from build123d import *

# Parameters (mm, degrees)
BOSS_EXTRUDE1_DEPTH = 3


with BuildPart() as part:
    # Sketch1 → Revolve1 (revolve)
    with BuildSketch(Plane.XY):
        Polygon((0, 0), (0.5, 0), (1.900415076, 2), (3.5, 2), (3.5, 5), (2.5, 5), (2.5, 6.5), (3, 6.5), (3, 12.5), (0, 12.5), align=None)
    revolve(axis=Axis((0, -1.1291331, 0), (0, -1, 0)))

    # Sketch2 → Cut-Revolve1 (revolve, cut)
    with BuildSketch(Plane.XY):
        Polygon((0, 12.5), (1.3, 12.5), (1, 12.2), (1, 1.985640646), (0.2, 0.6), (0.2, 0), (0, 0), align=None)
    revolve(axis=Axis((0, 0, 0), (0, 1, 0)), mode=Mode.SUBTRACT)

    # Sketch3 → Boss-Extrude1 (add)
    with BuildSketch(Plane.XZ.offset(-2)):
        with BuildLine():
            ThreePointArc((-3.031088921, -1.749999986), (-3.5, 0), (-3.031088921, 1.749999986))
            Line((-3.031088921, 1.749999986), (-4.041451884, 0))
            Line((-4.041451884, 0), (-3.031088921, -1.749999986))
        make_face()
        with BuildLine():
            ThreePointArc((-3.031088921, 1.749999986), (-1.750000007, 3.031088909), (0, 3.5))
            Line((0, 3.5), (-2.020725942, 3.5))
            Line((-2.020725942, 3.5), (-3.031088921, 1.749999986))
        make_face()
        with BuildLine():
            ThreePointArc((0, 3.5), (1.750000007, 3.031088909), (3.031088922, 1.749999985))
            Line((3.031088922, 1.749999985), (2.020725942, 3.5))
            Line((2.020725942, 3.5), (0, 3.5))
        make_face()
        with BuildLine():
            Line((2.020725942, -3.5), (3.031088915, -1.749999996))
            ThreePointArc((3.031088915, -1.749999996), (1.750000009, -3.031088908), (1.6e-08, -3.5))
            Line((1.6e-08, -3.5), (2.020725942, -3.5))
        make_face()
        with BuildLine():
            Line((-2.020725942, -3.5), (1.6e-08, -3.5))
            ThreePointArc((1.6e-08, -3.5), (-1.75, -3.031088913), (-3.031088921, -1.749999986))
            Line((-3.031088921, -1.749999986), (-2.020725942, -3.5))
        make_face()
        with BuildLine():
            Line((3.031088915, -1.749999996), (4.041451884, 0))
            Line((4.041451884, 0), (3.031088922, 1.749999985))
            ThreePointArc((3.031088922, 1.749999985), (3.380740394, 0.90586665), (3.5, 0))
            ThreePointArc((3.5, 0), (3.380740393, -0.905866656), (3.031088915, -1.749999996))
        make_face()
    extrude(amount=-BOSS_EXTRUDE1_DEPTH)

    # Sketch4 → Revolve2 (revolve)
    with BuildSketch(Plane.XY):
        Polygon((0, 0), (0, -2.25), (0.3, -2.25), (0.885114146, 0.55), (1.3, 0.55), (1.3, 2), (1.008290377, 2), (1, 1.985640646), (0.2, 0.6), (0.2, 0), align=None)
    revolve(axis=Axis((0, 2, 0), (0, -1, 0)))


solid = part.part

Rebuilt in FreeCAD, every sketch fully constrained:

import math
import FreeCAD as App
import Part
import Sketcher
Q = App.Units.Quantity


def add_polygon(sketch, points):
    """Adds a closed chain of lines whose ends are joined by coincident constraints."""
    first, n = sketch.GeometryCount, len(points)
    for a, b in zip(points, points[1:] + points[:1]):
        sketch.addGeometry(Part.LineSegment(App.Vector(*a, 0), App.Vector(*b, 0)), False)
    for i in range(n):
        sketch.addConstraint(Sketcher.Constraint("Coincident", first + i, 2, first + (i + 1) % n, 1))

doc = App.newDocument("Part")
params = doc.addObject("Spreadsheet::Sheet", "Params")
for row, (alias, value) in enumerate([
    ("sketch1_width", "1 mm"),
    ("sketch1_width2", "3 mm"),
    ("sketch1_height", "6 mm"),
    ("sketch1_width3", "0.5 mm"),
    ("sketch1_height2", "1.5 mm"),
    ("revolution_angle", "360 deg"),
    ("sketch2_width", "1.3 mm"),
    ("sketch2_width2", "0.2 mm"),
    ("sketch2_height", "12.5 mm"),
    ("sketch2_height2", "0.6 mm"),
    ("groove_angle", "360 deg"),
    ("sketch3_radius", "3.5 mm"),
    ("pad1_length", "3 mm"),
    ("sketch4_width", "0.3 mm"),
    ("sketch4_width2", "0.2 mm"),
    ("sketch4_height", "0.6 mm"),
    ("sketch4_height2", "2.25 mm"),
    ("sketch4_height3", "1.45 mm"),
    ("revolution2_angle", "360 deg"),
], start=1):
    params.set(f"A{row}", alias)
    params.set(f"B{row}", "=" + value)
    params.setAlias(f"B{row}", alias)

body = doc.addObject("PartDesign::Body", "Body")

sketch1 = body.newObject("Sketcher::SketchObject", "Sketch")
sketch1.AttachmentSupport = (doc.getObject("XY_Plane"), [""])
sketch1.MapMode = "FlatFace"
add_polygon(sketch1, [(0, 0), (0.5, 0), (1.9, 2), (3.5, 2), (3.5, 5), (2.5, 5), (2.5, 6.5), (3, 6.5), (3, 12.5), (0, 12.5)])
sketch1.addConstraint(Sketcher.Constraint("Horizontal", 0))
sketch1.addConstraint(Sketcher.Constraint("Horizontal", 2))
sketch1.addConstraint(Sketcher.Constraint("Vertical", 3))
sketch1.addConstraint(Sketcher.Constraint("Horizontal", 4))
sketch1.addConstraint(Sketcher.Constraint("Vertical", 5))
sketch1.addConstraint(Sketcher.Constraint("Horizontal", 6))
sketch1.addConstraint(Sketcher.Constraint("Vertical", 7))
sketch1.addConstraint(Sketcher.Constraint("Horizontal", 8))
sketch1.addConstraint(Sketcher.Constraint("Vertical", 9))
sketch1.addConstraint(Sketcher.Constraint("Coincident", 9, 2, -1, 1))
sketch1.addConstraint(Sketcher.Constraint("Equal", 0, 6))
sketch1.addConstraint(Sketcher.Constraint("Equal", 8, 3))
sketch1.addConstraint(Sketcher.Constraint("DistanceX", 4, 2, 4, 1, Q("1 mm")))
sketch1.addConstraint(Sketcher.Constraint("DistanceX", 8, 2, 8, 1, Q("3 mm")))
sketch1.addConstraint(Sketcher.Constraint("DistanceY", 7, 1, 7, 2, Q("6 mm")))
sketch1.addConstraint(Sketcher.Constraint("Angle", 1, Q("55 deg")))
sketch1.addConstraint(Sketcher.Constraint("DistanceX", 0, 1, 0, 2, Q("0.5 mm")))
sketch1.addConstraint(Sketcher.Constraint("DistanceY", 5, 1, 5, 2, Q("1.5 mm")))
sketch1.addConstraint(Sketcher.Constraint("DistanceY", 9, 2, 9, 1, Q("12.5 mm")))
sketch1.setExpression("Constraints[22]", "Params.sketch1_width")
sketch1.setExpression("Constraints[23]", "Params.sketch1_width2")
sketch1.setExpression("Constraints[24]", "Params.sketch1_height")
sketch1.setExpression("Constraints[26]", "Params.sketch1_width3")
sketch1.setExpression("Constraints[27]", "Params.sketch1_height2")
revolution = body.newObject("PartDesign::Revolution", "Revolution")
revolution.Profile = sketch1
revolution.ReferenceAxis = (sketch1, ["V_Axis"])
revolution.setExpression("Angle", "Params.revolution_angle")

sketch2 = body.newObject("Sketcher::SketchObject", "Sketch001")
sketch2.AttachmentSupport = (doc.getObject("XY_Plane"), [""])
sketch2.MapMode = "FlatFace"
add_polygon(sketch2, [(1.3, 12.5), (0, 12.5), (0, 0), (0.2, 0), (0.2, 0.6), (1, 1.99), (1, 12.2)])
sketch2.addConstraint(Sketcher.Constraint("Horizontal", 0))
sketch2.addConstraint(Sketcher.Constraint("Vertical", 1))
sketch2.addConstraint(Sketcher.Constraint("Horizontal", 2))
sketch2.addConstraint(Sketcher.Constraint("Vertical", 3))
sketch2.addConstraint(Sketcher.Constraint("Vertical", 5))
sketch2.addConstraint(Sketcher.Constraint("Coincident", 1, 2, -1, 1))
sketch2.addConstraint(Sketcher.Constraint("Angle", 4, Q("60 deg")))
sketch2.addConstraint(Sketcher.Constraint("Angle", 6, Q("45 deg")))
sketch2.addConstraint(Sketcher.Constraint("DistanceX", 0, 2, 0, 1, Q("1.3 mm")))
sketch2.addConstraint(Sketcher.Constraint("DistanceX", 2, 1, 2, 2, Q("0.2 mm")))
sketch2.addConstraint(Sketcher.Constraint("DistanceY", 1, 2, 1, 1, Q("12.5 mm")))
sketch2.addConstraint(Sketcher.Constraint("DistanceY", 3, 1, 3, 2, Q("0.6 mm")))
sketch2.addConstraint(Sketcher.Constraint("DistanceX", -1, 1, 4, 2, Q("1 mm")))
sketch2.setExpression("Constraints[15]", "Params.sketch2_width")
sketch2.setExpression("Constraints[16]", "Params.sketch2_width2")
sketch2.setExpression("Constraints[17]", "Params.sketch2_height")
sketch2.setExpression("Constraints[18]", "Params.sketch2_height2")
groove = body.newObject("PartDesign::Groove", "Groove")
groove.Profile = sketch2
groove.ReferenceAxis = (sketch2, ["V_Axis"])
groove.setExpression("Angle", "Params.groove_angle")

sketch3 = body.newObject("Sketcher::SketchObject", "Sketch002")
sketch3.AttachmentSupport = (doc.getObject("XZ_Plane"), [""])
sketch3.MapMode = "FlatFace"
sketch3.AttachmentOffset = App.Placement(App.Vector(0, 0, -2), App.Rotation())
sketch3.addGeometry(Part.ArcOfCircle(Part.Circle(App.Vector(0, 0, 0), App.Vector(0, 0, 1), 3.5), math.radians(150), math.radians(210)), False)
sketch3.addGeometry(Part.LineSegment(App.Vector(-3, 1.7, 0), App.Vector(-4, 0, 0)), False)
sketch3.addGeometry(Part.LineSegment(App.Vector(-4, 0, 0), App.Vector(-3, -1.7, 0)), False)
sketch3.addGeometry(Part.ArcOfCircle(Part.Circle(App.Vector(0, 0, 0), App.Vector(0, 0, 1), 3.5), math.radians(90), math.radians(150)), False)
sketch3.addGeometry(Part.LineSegment(App.Vector(0, 3.5, 0), App.Vector(-2, 3.5, 0)), False)
sketch3.addGeometry(Part.LineSegment(App.Vector(-2, 3.5, 0), App.Vector(-3, 1.7, 0)), False)
sketch3.addGeometry(Part.ArcOfCircle(Part.Circle(App.Vector(0, 0, 0), App.Vector(0, 0, 1), 3.5), math.radians(30), math.radians(90)), False)
sketch3.addGeometry(Part.LineSegment(App.Vector(3, 1.7, 0), App.Vector(2, 3.5, 0)), False)
sketch3.addGeometry(Part.LineSegment(App.Vector(2, 3.5, 0), App.Vector(0, 3.5, 0)), False)
sketch3.addGeometry(Part.LineSegment(App.Vector(2, -3.5, 0), App.Vector(3, -1.7, 0)), False)
sketch3.addGeometry(Part.ArcOfCircle(Part.Circle(App.Vector(0, 0, 0), App.Vector(0, 0, 1), 3.5), math.radians(-90), math.radians(-30)), False)
sketch3.addGeometry(Part.LineSegment(App.Vector(0, -3.5, 0), App.Vector(2, -3.5, 0)), False)
sketch3.addGeometry(Part.LineSegment(App.Vector(-2, -3.5, 0), App.Vector(0, -3.5, 0)), False)
sketch3.addGeometry(Part.ArcOfCircle(Part.Circle(App.Vector(0, 0, 0), App.Vector(0, 0, 1), 3.5), math.radians(-150), math.radians(-90)), False)
sketch3.addGeometry(Part.LineSegment(App.Vector(-3, -1.7, 0), App.Vector(-2, -3.5, 0)), False)
sketch3.addGeometry(Part.LineSegment(App.Vector(3, -1.7, 0), App.Vector(4, 0, 0)), False)
sketch3.addGeometry(Part.LineSegment(App.Vector(4, 0, 0), App.Vector(3, 1.7, 0)), False)
sketch3.addGeometry(Part.ArcOfCircle(Part.Circle(App.Vector(0, 0, 0), App.Vector(0, 0, 1), 3.5), math.radians(0), math.radians(30)), False)
sketch3.addGeometry(Part.ArcOfCircle(Part.Circle(App.Vector(0, 0, 0), App.Vector(0, 0, 1), 3.5), math.radians(-30), math.radians(0)), False)
sketch3.addConstraint(Sketcher.Constraint("Tangent", 0, 1, 1, 1))
sketch3.addConstraint(Sketcher.Constraint("Coincident", 1, 2, 2, 1))
sketch3.addConstraint(Sketcher.Constraint("Tangent", 2, 2, 0, 2))
sketch3.addConstraint(Sketcher.Constraint("Tangent", 3, 1, 4, 1))
sketch3.addConstraint(Sketcher.Constraint("Coincident", 4, 2, 5, 1))
sketch3.addConstraint(Sketcher.Constraint("Tangent", 5, 2, 3, 2))
sketch3.addConstraint(Sketcher.Constraint("Tangent", 6, 1, 7, 1))
sketch3.addConstraint(Sketcher.Constraint("Coincident", 7, 2, 8, 1))
sketch3.addConstraint(Sketcher.Constraint("Tangent", 8, 2, 6, 2))
sketch3.addConstraint(Sketcher.Constraint("Tangent", 9, 2, 10, 2))
sketch3.addConstraint(Sketcher.Constraint("Tangent", 10, 1, 11, 1))
sketch3.addConstraint(Sketcher.Constraint("Coincident", 11, 2, 9, 1))
sketch3.addConstraint(Sketcher.Constraint("Tangent", 12, 2, 13, 2))
sketch3.addConstraint(Sketcher.Constraint("Tangent", 13, 1, 14, 1))
sketch3.addConstraint(Sketcher.Constraint("Coincident", 14, 2, 12, 1))
sketch3.addConstraint(Sketcher.Constraint("Coincident", 15, 2, 16, 1))
sketch3.addConstraint(Sketcher.Constraint("Tangent", 16, 2, 17, 2))
sketch3.addConstraint(Sketcher.Constraint("Tangent", 17, 1, 18, 2))
sketch3.addConstraint(Sketcher.Constraint("Tangent", 18, 1, 15, 1))
sketch3.addConstraint(Sketcher.Constraint("Horizontal", 4))
sketch3.addConstraint(Sketcher.Constraint("Horizontal", 8))
sketch3.addConstraint(Sketcher.Constraint("Horizontal", 11))
sketch3.addConstraint(Sketcher.Constraint("Horizontal", 12))
sketch3.addConstraint(Sketcher.Constraint("Coincident", 0, 3, -1, 1))
sketch3.addConstraint(Sketcher.Constraint("Coincident", 3, 3, -1, 1))
sketch3.addConstraint(Sketcher.Constraint("Coincident", 6, 3, -1, 1))
sketch3.addConstraint(Sketcher.Constraint("Coincident", 10, 3, -1, 1))
sketch3.addConstraint(Sketcher.Constraint("Coincident", 13, 3, -1, 1))
sketch3.addConstraint(Sketcher.Constraint("Coincident", 17, 3, -1, 1))
sketch3.addConstraint(Sketcher.Constraint("Coincident", 5, 2, 0, 1))
sketch3.addConstraint(Sketcher.Constraint("Coincident", 13, 1, 2, 2))
sketch3.addConstraint(Sketcher.Constraint("Coincident", 16, 2, 6, 1))
sketch3.addConstraint(Sketcher.Constraint("Coincident", 18, 1, 9, 2))
sketch3.addConstraint(Sketcher.Constraint("Equal", 3, 6))
sketch3.addConstraint(Sketcher.Constraint("Equal", 6, 10))
sketch3.addConstraint(Sketcher.Constraint("Symmetric", 1, 2, 15, 2, -1, 1))
sketch3.addConstraint(Sketcher.Constraint("PointOnObject", 1, 2, -1))
sketch3.addConstraint(Sketcher.Constraint("PointOnObject", 17, 1, -1))
sketch3.addConstraint(Sketcher.Constraint("Equal", 2, 5))
sketch3.addConstraint(Sketcher.Constraint("Radius", 0, Q("3.5 mm")))
sketch3.setExpression("Constraints[39]", "Params.sketch3_radius")
pad1 = body.newObject("PartDesign::Pad", "Pad")
pad1.Profile = sketch3
pad1.setExpression("Length", "Params.pad1_length")
pad1.Reversed = True

sketch4 = body.newObject("Sketcher::SketchObject", "Sketch003")
sketch4.AttachmentSupport = (doc.getObject("XY_Plane"), [""])
sketch4.MapMode = "FlatFace"
add_polygon(sketch4, [(0, 0), (0, -2.25), (0.3, -2.25), (0.885, 0.55), (1.3, 0.55), (1.3, 2), (1.008, 2), (1, 1.986), (0.2, 0.6), (0.2, 0)])
sketch4.addConstraint(Sketcher.Constraint("Vertical", 0))
sketch4.addConstraint(Sketcher.Constraint("Horizontal", 1))
sketch4.addConstraint(Sketcher.Constraint("Horizontal", 3))
sketch4.addConstraint(Sketcher.Constraint("Vertical", 4))
sketch4.addConstraint(Sketcher.Constraint("Horizontal", 5))
sketch4.addConstraint(Sketcher.Constraint("Vertical", 8))
sketch4.addConstraint(Sketcher.Constraint("Horizontal", 9))
sketch4.addConstraint(Sketcher.Constraint("Coincident", 9, 2, -1, 1))
sketch4.addConstraint(Sketcher.Constraint("Parallel", 6, 7))
sketch4.addConstraint(Sketcher.Constraint("Angle", 6, Q("-120 deg")))
sketch4.addConstraint(Sketcher.Constraint("DistanceX", 1, 1, 1, 2, Q("0.3 mm")))
sketch4.addConstraint(Sketcher.Constraint("DistanceX", 9, 2, 9, 1, Q("0.2 mm")))
sketch4.addConstraint(Sketcher.Constraint("DistanceY", 8, 2, 8, 1, Q("0.6 mm")))
sketch4.addConstraint(Sketcher.Constraint("DistanceY", -1, 1, 4, 2, Q("2 mm")))
sketch4.addConstraint(Sketcher.Constraint("DistanceX", -1, 1, 6, 2, Q("1 mm")))
sketch4.addConstraint(Sketcher.Constraint("DistanceX", 1, 2, 3, 2, Q("1 mm")))
sketch4.addConstraint(Sketcher.Constraint("DistanceY", 0, 2, 0, 1, Q("2.25 mm")))
sketch4.addConstraint(Sketcher.Constraint("DistanceY", 4, 1, 4, 2, Q("1.45 mm")))
sketch4.addConstraint(Sketcher.Constraint("DistanceX", 3, 1, 3, 2, Q("0.414886 mm")))
sketch4.setExpression("Constraints[20]", "Params.sketch4_width")
sketch4.setExpression("Constraints[21]", "Params.sketch4_width2")
sketch4.setExpression("Constraints[22]", "Params.sketch4_height")
sketch4.setExpression("Constraints[26]", "Params.sketch4_height2")
sketch4.setExpression("Constraints[27]", "Params.sketch4_height3")
revolution2 = body.newObject("PartDesign::Revolution", "Revolution001")
revolution2.Profile = sketch4
revolution2.ReferenceAxis = (sketch4, ["V_Axis"])
revolution2.setExpression("Angle", "Params.revolution2_angle")

doc.recompute()
